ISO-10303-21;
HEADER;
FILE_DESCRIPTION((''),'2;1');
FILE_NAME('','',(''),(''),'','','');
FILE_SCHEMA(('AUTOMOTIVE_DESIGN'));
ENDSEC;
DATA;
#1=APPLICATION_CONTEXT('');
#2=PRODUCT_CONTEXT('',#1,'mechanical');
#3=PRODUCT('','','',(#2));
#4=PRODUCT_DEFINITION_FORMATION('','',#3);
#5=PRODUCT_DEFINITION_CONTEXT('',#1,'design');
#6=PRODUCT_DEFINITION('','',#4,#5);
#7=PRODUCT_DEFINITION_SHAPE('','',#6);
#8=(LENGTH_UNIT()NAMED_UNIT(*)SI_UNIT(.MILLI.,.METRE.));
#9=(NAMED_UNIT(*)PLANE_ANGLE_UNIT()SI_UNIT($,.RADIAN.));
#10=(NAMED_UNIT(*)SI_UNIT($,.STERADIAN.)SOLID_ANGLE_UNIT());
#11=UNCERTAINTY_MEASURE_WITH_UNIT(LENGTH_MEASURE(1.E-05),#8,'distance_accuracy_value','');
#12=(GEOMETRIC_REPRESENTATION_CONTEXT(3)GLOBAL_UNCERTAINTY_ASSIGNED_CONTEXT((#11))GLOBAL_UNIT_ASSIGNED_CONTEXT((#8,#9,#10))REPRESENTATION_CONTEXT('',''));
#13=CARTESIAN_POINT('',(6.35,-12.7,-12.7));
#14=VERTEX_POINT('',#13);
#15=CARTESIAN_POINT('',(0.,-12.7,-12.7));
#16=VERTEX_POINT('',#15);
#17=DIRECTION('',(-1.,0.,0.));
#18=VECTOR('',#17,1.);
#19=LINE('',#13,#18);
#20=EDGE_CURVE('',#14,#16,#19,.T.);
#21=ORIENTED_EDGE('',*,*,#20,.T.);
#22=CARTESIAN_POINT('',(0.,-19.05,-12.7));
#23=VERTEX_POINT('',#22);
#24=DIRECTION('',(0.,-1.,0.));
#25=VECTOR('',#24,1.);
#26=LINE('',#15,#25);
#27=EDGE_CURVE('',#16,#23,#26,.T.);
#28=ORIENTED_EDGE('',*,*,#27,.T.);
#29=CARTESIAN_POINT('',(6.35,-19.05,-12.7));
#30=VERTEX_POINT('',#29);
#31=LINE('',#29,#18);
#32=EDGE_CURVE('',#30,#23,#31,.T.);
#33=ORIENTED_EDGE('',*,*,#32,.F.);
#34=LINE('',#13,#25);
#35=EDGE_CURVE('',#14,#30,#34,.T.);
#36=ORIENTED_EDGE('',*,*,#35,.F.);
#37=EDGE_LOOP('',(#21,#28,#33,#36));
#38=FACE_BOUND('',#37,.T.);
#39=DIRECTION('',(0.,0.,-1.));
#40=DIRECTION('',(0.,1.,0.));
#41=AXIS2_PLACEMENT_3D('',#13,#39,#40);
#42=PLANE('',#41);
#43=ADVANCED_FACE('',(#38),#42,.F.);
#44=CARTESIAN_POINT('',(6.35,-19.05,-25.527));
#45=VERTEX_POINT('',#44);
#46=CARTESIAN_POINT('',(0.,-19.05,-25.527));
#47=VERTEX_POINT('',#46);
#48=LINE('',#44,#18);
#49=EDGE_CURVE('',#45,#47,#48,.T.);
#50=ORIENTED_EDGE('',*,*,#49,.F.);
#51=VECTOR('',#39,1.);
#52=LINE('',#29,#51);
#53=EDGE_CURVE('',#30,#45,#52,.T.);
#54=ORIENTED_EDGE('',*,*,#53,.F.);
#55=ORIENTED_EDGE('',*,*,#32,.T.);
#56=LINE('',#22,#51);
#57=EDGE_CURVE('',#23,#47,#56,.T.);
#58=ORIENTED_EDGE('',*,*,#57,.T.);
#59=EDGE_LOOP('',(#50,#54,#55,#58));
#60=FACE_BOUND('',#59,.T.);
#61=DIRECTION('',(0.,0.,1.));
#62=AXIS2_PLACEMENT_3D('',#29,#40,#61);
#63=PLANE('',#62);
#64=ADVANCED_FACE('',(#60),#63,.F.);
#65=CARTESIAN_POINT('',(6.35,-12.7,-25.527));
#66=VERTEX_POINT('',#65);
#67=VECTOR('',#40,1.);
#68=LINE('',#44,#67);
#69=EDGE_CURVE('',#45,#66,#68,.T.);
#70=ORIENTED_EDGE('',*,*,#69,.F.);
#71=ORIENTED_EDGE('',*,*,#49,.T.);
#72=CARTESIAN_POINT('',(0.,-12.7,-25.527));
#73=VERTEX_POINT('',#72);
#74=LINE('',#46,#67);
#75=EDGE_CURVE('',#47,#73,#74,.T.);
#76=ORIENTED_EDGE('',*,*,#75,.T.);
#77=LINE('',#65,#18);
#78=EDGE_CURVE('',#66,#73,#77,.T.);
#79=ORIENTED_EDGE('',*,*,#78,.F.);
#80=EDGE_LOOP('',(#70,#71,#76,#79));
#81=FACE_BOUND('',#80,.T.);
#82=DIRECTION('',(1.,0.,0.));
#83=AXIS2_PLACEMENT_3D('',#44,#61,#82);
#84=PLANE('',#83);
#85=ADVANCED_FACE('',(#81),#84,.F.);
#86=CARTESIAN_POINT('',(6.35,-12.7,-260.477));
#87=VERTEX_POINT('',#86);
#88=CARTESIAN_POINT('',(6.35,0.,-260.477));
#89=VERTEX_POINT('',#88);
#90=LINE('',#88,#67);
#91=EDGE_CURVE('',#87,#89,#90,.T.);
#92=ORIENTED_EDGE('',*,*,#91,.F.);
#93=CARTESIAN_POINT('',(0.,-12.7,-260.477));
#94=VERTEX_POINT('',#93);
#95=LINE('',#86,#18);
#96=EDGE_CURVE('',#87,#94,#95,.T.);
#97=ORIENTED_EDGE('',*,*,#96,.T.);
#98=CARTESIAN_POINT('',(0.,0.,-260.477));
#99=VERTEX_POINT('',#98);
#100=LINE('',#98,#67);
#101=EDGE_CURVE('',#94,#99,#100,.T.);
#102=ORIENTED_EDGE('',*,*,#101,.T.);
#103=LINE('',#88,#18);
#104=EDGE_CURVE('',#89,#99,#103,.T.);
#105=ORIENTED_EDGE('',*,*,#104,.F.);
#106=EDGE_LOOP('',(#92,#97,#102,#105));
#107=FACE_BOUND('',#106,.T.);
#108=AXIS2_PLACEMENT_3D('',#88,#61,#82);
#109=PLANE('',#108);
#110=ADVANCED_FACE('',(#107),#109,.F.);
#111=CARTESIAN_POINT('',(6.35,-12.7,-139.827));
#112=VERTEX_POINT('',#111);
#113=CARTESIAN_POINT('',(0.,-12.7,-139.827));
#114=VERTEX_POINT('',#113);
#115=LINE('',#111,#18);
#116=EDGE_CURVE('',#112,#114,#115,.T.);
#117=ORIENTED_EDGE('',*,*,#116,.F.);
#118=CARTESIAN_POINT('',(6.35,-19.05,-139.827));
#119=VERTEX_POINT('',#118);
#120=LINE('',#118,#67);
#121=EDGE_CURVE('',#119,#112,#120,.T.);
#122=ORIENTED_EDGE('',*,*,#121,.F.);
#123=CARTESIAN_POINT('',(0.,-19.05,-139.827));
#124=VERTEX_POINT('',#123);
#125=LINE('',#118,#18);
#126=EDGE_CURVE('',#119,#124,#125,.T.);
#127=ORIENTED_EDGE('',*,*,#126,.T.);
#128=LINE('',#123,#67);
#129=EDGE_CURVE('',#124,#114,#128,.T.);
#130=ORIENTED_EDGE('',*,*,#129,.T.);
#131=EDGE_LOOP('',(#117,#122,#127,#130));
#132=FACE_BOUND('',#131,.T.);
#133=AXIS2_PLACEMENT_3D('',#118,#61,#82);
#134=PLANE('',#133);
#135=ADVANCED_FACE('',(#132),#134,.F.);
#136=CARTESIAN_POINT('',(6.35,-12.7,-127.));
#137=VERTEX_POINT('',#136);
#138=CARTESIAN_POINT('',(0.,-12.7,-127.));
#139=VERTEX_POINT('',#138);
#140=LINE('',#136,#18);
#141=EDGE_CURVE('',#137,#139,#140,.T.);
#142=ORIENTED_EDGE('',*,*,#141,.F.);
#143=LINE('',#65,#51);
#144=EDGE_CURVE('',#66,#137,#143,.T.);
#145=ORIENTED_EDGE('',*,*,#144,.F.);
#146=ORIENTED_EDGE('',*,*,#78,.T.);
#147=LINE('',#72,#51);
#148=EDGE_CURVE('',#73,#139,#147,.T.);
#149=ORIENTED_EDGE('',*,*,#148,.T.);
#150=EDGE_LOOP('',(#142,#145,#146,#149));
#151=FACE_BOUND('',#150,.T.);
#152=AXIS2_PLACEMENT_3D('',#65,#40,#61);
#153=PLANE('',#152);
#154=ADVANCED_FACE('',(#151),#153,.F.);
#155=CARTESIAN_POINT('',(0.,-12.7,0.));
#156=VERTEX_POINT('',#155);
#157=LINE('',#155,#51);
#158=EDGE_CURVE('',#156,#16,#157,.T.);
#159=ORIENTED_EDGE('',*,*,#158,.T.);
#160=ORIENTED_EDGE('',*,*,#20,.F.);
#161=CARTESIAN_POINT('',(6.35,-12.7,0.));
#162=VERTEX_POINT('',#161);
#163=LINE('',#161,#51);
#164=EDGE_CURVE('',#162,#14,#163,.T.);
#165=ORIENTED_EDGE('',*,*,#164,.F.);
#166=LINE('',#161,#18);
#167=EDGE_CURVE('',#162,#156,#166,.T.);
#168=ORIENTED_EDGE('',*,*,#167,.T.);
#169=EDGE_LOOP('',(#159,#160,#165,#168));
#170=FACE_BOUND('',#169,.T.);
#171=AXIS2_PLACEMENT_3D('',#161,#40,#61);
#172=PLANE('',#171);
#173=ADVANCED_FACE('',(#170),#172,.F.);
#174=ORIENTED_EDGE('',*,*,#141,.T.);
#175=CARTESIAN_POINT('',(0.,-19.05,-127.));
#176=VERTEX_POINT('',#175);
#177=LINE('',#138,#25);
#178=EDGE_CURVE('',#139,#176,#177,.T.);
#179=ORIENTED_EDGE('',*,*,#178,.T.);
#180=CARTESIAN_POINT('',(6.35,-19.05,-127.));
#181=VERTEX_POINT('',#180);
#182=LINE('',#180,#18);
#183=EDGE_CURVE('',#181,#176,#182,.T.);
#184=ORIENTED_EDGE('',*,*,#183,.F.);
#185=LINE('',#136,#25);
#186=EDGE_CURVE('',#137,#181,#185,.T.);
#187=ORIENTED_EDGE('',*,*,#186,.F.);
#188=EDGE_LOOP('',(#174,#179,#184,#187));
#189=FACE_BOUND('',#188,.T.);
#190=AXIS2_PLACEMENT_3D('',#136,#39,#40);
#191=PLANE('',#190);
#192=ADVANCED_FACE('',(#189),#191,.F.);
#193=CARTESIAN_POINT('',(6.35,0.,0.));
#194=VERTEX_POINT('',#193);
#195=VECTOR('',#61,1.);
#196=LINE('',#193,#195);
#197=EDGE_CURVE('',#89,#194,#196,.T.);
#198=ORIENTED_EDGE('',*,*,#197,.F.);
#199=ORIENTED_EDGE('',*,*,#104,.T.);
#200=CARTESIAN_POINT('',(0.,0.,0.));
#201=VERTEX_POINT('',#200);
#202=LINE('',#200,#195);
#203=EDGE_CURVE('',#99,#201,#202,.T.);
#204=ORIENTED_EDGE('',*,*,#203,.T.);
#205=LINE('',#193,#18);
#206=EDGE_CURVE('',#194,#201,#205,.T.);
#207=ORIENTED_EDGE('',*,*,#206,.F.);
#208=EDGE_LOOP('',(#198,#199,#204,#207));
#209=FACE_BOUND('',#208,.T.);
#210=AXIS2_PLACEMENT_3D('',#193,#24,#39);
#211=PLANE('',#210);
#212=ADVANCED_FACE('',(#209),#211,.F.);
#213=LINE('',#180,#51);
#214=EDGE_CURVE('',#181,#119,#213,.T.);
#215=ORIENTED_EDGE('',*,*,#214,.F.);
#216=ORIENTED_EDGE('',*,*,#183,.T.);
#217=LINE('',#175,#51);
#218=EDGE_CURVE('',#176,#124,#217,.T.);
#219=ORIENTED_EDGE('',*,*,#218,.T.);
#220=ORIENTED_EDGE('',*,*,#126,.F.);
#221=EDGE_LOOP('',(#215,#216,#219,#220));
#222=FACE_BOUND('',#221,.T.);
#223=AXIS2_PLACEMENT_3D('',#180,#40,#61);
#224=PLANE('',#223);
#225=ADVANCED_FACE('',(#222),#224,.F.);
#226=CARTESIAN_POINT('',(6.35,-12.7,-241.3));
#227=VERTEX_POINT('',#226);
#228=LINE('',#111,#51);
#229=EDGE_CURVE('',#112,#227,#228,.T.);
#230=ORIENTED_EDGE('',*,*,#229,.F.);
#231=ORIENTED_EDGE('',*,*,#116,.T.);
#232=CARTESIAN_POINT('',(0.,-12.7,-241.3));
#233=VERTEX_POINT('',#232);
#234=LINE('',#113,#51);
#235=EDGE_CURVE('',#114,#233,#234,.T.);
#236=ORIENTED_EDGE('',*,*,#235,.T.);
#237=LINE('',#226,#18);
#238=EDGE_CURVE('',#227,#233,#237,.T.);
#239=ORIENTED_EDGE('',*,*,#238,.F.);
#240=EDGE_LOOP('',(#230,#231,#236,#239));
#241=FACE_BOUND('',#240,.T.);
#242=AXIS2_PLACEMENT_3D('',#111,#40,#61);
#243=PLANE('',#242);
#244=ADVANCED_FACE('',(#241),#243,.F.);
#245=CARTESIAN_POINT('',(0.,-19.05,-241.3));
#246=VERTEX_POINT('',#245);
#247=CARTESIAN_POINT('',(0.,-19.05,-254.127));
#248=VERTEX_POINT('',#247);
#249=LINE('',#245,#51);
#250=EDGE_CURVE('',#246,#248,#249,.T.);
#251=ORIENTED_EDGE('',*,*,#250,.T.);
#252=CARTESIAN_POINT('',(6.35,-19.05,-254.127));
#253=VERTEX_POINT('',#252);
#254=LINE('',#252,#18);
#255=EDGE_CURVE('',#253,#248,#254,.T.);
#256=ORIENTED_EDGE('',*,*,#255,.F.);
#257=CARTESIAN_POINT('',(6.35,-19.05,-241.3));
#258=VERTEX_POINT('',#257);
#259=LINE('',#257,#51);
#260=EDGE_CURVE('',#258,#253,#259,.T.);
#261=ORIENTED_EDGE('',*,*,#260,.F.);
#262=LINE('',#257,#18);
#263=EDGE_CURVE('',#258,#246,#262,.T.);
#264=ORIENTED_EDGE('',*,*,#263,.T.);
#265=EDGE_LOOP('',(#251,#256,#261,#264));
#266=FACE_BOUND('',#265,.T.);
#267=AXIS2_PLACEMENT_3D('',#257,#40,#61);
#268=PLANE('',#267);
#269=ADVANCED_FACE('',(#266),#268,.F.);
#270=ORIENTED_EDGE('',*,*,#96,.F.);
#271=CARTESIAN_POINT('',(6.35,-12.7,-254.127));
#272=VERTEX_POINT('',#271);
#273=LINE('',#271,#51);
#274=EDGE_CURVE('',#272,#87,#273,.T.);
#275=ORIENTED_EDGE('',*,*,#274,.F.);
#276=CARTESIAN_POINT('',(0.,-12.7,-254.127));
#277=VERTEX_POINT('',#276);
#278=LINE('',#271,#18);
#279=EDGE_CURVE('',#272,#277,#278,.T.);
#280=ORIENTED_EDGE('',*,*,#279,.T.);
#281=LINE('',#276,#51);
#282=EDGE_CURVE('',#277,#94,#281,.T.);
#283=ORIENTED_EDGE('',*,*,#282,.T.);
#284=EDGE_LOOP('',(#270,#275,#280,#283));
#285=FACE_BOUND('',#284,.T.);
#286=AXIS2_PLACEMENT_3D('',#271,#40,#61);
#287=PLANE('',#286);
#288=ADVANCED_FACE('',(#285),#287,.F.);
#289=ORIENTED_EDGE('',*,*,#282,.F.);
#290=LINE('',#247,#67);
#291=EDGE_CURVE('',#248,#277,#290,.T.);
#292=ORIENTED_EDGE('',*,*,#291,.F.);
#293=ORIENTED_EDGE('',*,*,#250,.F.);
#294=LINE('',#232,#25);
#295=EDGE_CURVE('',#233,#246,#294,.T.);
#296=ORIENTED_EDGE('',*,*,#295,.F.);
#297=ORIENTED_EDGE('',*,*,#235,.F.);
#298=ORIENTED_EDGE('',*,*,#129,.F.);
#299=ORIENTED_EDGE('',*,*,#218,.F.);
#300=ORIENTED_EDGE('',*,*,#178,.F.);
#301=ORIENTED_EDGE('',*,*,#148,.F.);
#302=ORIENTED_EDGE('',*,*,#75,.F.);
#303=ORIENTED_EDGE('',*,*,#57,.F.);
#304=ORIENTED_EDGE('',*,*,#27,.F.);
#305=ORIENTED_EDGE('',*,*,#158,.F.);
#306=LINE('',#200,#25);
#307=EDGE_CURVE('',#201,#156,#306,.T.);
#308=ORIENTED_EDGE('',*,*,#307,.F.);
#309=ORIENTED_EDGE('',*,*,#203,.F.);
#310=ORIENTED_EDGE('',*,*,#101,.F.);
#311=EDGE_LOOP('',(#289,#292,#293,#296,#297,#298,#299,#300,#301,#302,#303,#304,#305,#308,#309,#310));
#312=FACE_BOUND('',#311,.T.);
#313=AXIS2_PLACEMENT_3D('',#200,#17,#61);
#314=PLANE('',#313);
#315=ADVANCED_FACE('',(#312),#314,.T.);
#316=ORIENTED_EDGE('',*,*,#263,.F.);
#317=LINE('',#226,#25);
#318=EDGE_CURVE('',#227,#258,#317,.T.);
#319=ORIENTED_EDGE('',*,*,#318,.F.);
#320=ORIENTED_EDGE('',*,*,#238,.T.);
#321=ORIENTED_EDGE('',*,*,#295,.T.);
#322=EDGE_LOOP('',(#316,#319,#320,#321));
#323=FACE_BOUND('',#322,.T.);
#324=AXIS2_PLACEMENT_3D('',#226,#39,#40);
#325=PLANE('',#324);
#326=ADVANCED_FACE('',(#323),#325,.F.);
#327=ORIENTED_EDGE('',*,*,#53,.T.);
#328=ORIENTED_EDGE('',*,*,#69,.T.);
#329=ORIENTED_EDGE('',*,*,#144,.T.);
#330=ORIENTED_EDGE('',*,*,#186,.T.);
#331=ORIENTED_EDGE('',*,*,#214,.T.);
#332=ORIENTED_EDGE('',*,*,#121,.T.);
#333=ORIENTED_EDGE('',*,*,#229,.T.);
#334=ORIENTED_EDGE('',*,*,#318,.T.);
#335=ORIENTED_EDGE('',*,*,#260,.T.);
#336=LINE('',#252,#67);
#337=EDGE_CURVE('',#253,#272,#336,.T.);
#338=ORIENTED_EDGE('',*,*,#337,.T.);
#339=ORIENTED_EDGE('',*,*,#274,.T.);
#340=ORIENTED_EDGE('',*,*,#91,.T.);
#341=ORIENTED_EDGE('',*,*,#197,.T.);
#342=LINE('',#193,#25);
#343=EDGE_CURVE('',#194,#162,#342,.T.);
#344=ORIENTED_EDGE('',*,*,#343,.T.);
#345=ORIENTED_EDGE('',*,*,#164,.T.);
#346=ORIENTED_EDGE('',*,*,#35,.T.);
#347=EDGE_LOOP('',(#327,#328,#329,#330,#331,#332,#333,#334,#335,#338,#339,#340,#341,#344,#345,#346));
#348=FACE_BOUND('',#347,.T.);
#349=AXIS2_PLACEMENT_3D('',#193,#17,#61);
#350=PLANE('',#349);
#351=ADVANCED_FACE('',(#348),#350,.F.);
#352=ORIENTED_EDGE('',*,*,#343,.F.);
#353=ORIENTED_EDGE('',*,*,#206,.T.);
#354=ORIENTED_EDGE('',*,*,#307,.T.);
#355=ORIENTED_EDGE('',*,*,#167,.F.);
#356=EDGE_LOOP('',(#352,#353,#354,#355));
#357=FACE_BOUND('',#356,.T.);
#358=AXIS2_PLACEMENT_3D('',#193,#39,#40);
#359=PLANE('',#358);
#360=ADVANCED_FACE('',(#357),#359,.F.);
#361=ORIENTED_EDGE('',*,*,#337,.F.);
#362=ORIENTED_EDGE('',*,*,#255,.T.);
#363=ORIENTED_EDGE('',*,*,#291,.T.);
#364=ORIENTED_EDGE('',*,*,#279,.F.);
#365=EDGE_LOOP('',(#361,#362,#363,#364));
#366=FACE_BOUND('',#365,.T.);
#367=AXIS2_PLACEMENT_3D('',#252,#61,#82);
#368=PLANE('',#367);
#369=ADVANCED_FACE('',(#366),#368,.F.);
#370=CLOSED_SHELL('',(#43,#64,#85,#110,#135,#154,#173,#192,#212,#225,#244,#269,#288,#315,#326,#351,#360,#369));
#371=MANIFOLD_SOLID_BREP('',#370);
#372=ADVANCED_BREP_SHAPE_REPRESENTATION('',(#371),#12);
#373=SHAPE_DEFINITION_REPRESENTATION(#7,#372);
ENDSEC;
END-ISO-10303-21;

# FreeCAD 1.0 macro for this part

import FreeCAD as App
import Part
import Sketcher

V = App.Vector
Q = App.Units.Quantity


def add_polygon(sketch, points):
    """Adds a closed chain of lines whose ends are joined by coincident constraints."""
    first, n = sketch.GeometryCount, len(points)
    for a, b in zip(points, points[1:] + points[:1]):
        sketch.addGeometry(Part.LineSegment(App.Vector(*a, 0), App.Vector(*b, 0)), False)
    for i in range(n):
        sketch.addConstraint(Sketcher.Constraint("Coincident", first + i, 2, first + (i + 1) % n, 1))

doc = App.newDocument("Part")
body = doc.addObject("PartDesign::Body", "Body")

# Sketch on YZ plane
sketch1 = doc.addObject("Sketcher::SketchObject", "Sketch")
body.addObject(sketch1)
sketch1.AttachmentSupport = (doc.YZ_Plane, [""])
sketch1.MapMode = "FlatFace"
add_polygon(sketch1, [(0, 0), (-12.7, 0), (-12.7, -12.7), (-19.05, -12.7), (-19.05, -25.527), (-12.7, -25.527), (-12.7, -127), (-19.05, -127), (-19.05, -139.827), (-12.7, -139.827), (-12.7, -241.3), (-19.05, -241.3), (-19.05, -254.127), (-12.7, -254.127), (-12.7, -260.477), (0, -260.477)])  # lines 0-15
sketch1.addConstraint([
    Sketcher.Constraint("Horizontal", 0),
    Sketcher.Constraint("Vertical", 1),
    Sketcher.Constraint("Horizontal", 2),
    Sketcher.Constraint("Vertical", 3),
    Sketcher.Constraint("Horizontal", 4),
    Sketcher.Constraint("Vertical", 5),
    Sketcher.Constraint("Horizontal", 6),
    Sketcher.Constraint("Vertical", 7),
    Sketcher.Constraint("Horizontal", 8),
    Sketcher.Constraint("Vertical", 9),
    Sketcher.Constraint("Horizontal", 10),
    Sketcher.Constraint("Vertical", 11),
    Sketcher.Constraint("Horizontal", 12),
    Sketcher.Constraint("Vertical", 13),
    Sketcher.Constraint("Horizontal", 14),
    Sketcher.Constraint("Vertical", 15),
    Sketcher.Constraint("Coincident", 15, 2, -1, 1),
    Sketcher.Constraint("Vertical", 1, 2, 4, 2),
    Sketcher.Constraint("Vertical", 3, 2, 6, 2),
    Sketcher.Constraint("Vertical", 5, 2, 8, 2),
    Sketcher.Constraint("Vertical", 7, 2, 10, 2),
    Sketcher.Constraint("Vertical", 9, 2, 12, 2),
    Sketcher.Constraint("Equal", 14, 1),
    Sketcher.Constraint("Equal", 3, 7),
    Sketcher.Constraint("Equal", 5, 9),
    Sketcher.Constraint("Equal", 7, 11),
    Sketcher.Constraint("Equal", 12, 13),
    Sketcher.Constraint("DistanceX", 0, 2, 0, 1, Q("0.5 in")),
    Sketcher.Constraint("DistanceY", 5, 2, -1, 1, Q("5 in")),
    Sketcher.Constraint("DistanceX", 2, 2, 2, 1, Q("0.25 in")),
    Sketcher.Constraint("DistanceY", 3, 2, 3, 1, Q("0.505 in")),
])
pad1 = doc.addObject("PartDesign::Pad", "Pad")
body.addObject(pad1)
pad1.Profile = sketch1
pad1.Length = Q("0.25 in")

doc.recompute()
